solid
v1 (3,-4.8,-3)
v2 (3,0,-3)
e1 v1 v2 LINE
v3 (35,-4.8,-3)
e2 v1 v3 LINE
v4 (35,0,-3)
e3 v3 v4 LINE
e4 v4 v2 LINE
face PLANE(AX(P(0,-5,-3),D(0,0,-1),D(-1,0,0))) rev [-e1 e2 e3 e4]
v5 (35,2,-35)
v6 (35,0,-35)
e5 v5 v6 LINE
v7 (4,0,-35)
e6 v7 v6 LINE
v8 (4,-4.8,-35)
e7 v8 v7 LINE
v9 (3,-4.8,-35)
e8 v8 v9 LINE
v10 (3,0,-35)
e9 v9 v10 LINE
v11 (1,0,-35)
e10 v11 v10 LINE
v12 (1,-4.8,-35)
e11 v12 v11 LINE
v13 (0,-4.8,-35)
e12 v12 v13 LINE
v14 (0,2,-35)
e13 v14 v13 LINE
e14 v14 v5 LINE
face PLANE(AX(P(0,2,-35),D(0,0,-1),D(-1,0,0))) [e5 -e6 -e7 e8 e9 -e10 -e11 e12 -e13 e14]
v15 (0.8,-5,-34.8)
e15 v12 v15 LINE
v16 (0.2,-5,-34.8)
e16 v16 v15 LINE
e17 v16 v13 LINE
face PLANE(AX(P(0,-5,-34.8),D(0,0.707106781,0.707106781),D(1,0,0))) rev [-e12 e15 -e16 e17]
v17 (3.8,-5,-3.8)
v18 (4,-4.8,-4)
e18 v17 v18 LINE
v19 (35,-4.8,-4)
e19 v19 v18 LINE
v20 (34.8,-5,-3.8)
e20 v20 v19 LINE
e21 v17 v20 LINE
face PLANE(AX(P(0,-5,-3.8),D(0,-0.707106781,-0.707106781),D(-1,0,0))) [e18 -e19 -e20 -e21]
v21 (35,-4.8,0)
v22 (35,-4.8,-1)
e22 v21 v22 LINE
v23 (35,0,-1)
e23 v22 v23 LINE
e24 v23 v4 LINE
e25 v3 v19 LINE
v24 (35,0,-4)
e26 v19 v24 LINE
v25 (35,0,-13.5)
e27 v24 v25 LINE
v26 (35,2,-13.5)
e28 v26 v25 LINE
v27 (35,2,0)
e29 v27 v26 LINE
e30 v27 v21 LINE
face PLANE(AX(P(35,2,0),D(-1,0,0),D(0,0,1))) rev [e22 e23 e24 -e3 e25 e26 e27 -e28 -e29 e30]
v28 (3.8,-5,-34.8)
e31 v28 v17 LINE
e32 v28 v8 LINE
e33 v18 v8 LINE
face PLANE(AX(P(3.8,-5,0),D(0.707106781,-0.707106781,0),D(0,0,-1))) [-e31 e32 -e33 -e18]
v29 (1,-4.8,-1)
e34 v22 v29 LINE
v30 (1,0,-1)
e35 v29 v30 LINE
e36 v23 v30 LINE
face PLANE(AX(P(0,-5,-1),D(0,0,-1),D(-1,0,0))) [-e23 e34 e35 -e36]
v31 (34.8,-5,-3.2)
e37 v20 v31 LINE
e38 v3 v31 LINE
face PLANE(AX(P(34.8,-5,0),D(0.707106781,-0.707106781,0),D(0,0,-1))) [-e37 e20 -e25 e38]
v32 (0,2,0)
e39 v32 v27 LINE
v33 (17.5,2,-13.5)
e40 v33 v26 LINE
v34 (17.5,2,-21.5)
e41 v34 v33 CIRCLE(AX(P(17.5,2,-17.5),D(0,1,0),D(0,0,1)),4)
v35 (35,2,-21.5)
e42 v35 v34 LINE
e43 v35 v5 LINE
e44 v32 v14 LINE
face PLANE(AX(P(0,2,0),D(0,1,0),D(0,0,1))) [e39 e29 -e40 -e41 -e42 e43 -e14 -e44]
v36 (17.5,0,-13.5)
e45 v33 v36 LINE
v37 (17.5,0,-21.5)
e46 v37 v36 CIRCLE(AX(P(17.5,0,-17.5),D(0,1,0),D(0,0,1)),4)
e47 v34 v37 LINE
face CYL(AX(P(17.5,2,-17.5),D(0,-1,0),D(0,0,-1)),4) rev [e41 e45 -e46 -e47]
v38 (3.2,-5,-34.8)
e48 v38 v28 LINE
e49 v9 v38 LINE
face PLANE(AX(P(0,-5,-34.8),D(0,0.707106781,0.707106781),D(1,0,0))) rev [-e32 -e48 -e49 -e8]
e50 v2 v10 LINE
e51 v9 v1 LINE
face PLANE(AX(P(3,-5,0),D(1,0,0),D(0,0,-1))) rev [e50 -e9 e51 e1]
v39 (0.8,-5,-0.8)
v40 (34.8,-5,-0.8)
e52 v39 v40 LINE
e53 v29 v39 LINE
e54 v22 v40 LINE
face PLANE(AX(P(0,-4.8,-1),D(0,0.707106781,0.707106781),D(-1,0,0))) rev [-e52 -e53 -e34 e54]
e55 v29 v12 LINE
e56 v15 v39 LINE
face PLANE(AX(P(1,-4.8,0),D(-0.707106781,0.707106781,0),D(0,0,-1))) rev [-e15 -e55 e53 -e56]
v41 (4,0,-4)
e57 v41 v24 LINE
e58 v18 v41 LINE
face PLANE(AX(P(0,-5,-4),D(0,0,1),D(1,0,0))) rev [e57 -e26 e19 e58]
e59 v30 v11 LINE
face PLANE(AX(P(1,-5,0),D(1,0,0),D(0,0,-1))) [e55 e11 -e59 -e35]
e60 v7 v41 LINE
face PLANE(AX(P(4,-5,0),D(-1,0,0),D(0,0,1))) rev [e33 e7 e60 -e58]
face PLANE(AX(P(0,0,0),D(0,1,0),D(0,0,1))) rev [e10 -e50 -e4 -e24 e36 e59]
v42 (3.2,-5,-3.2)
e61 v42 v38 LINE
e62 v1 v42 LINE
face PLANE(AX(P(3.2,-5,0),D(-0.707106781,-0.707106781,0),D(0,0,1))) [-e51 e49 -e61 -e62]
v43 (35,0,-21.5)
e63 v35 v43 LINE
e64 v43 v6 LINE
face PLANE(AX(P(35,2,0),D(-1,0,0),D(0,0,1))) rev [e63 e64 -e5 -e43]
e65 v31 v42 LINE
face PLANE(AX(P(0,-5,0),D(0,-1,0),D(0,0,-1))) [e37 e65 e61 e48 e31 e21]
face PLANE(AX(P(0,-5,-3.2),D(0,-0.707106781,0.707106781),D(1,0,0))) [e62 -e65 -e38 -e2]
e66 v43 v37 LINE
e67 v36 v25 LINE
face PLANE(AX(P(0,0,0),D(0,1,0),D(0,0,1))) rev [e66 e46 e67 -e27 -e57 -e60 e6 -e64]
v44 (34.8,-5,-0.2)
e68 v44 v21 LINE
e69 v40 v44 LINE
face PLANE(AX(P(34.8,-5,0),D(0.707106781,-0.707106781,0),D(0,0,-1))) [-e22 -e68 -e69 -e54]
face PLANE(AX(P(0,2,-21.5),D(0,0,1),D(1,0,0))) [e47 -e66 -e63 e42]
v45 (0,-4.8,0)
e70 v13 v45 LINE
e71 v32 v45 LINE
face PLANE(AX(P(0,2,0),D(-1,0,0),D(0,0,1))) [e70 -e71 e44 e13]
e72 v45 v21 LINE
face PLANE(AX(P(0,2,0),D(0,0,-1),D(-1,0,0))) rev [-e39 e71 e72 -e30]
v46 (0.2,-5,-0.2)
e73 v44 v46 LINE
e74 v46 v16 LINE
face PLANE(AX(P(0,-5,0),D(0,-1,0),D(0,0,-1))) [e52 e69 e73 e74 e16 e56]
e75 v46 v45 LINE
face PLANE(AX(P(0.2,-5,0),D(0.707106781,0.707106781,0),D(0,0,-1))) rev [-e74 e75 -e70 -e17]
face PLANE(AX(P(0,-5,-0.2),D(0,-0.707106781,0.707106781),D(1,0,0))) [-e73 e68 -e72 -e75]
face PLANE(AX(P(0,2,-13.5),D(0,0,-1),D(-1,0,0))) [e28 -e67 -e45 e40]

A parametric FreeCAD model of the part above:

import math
import FreeCAD as App
import Part
import Sketcher

V = App.Vector
Q = App.Units.Quantity


def edges_at(feature, points):
    """Names of the edges that pass closest to the given points."""
    edges = feature.Shape.Edges
    near = lambda p: min(range(len(edges)), key=lambda i: edges[i].distToShape(Part.Vertex(*p))[0])
    return sorted({f"Edge{near(p) + 1}" for p in points})

doc = App.newDocument("Part")
body = doc.addObject("PartDesign::Body", "Body")

sketch1 = body.newObject("Sketcher::SketchObject", "Sketch")
sketch1.AttachmentSupport = (doc.getObject("XZ_Plane"), [""])
sketch1.MapMode = "FlatFace"
sketch1.addGeometry([
    Part.LineSegment(V(35, -13.5, 0), V(17.5, -13.5, 0)),
    Part.ArcOfCircle(Part.Circle(V(17.5, -17.5, 0), V(0, 0, 1), 4), math.radians(90), math.radians(270)),
    Part.LineSegment(V(17.5, -21.5, 0), V(35, -21.5, 0)),
    Part.LineSegment(V(35, -21.5, 0), V(35, -35, 0)),
    Part.LineSegment(V(35, -35, 0), V(0, -35, 0)),
    Part.LineSegment(V(0, -35, 0), V(0, 0, 0)),
    Part.LineSegment(V(0, 0, 0), V(35, 0, 0)),
    Part.LineSegment(V(35, 0, 0), V(35, -13.5, 0)),
], False)
sketch1.addConstraint([
    Sketcher.Constraint("Tangent", 0, 2, 1, 1),
    Sketcher.Constraint("Tangent", 1, 2, 2, 1),
    Sketcher.Constraint("Coincident", 2, 2, 3, 1),
    Sketcher.Constraint("Coincident", 3, 2, 4, 1),
    Sketcher.Constraint("Coincident", 4, 2, 5, 1),
    Sketcher.Constraint("Coincident", 5, 2, 6, 1),
    Sketcher.Constraint("Coincident", 6, 2, 7, 1),
    Sketcher.Constraint("Coincident", 7, 2, 0, 1),
    Sketcher.Constraint("Horizontal", 0),
    Sketcher.Constraint("Horizontal", 2),
    Sketcher.Constraint("Vertical", 3),
    Sketcher.Constraint("Horizontal", 4),
    Sketcher.Constraint("Vertical", 5),
    Sketcher.Constraint("Horizontal", 6),
    Sketcher.Constraint("Vertical", 7),
    Sketcher.Constraint("Coincident", 5, 2, -1, 1),
    Sketcher.Constraint("Vertical", 3, 2, 6, 2),
    Sketcher.Constraint("Equal", 6, 5),
    Sketcher.Constraint("Equal", 3, 7),
    Sketcher.Constraint("Radius", 1, Q("4 mm")),
    Sketcher.Constraint("DistanceX", 4, 2, 4, 1, Q("35 mm")),
    Sketcher.Constraint("DistanceX", 0, 2, 0, 1, Q("17.5 mm")),
])
pad1 = body.newObject("PartDesign::Pad", "Pad")
pad1.Profile = sketch1
pad1.Length = 2
pad1.Reversed = True

sketch2 = body.newObject("Sketcher::SketchObject", "Sketch001")
sketch2.AttachmentSupport = (doc.getObject("XZ_Plane"), [""])
sketch2.MapMode = "FlatFace"
sketch2.addGeometry([
    Part.LineSegment(V(35, -4, 0), V(35, -3, 0)),
    Part.LineSegment(V(35, -3, 0), V(3, -3, 0)),
    Part.LineSegment(V(3, -3, 0), V(3, -35, 0)),
    Part.LineSegment(V(3, -35, 0), V(4, -35, 0)),
    Part.LineSegment(V(4, -35, 0), V(4, -4, 0)),
    Part.LineSegment(V(4, -4, 0), V(35, -4, 0)),
    Part.LineSegment(V(35, -1, 0), V(35, 0, 0)),
    Part.LineSegment(V(35, 0, 0), V(0, 0, 0)),
    Part.LineSegment(V(0, 0, 0), V(0, -35, 0)),
    Part.LineSegment(V(0, -35, 0), V(1, -35, 0)),
    Part.LineSegment(V(1, -35, 0), V(1, -1, 0)),
    Part.LineSegment(V(1, -1, 0), V(35, -1, 0)),
], False)
sketch2.addConstraint([
    Sketcher.Constraint("Coincident", 0, 2, 1, 1),
    Sketcher.Constraint("Coincident", 1, 2, 2, 1),
    Sketcher.Constraint("Coincident", 2, 2, 3, 1),
    Sketcher.Constraint("Coincident", 3, 2, 4, 1),
    Sketcher.Constraint("Coincident", 4, 2, 5, 1),
    Sketcher.Constraint("Coincident", 5, 2, 0, 1),
    Sketcher.Constraint("Coincident", 6, 2, 7, 1),
    Sketcher.Constraint("Coincident", 7, 2, 8, 1),
    Sketcher.Constraint("Coincident", 8, 2, 9, 1),
    Sketcher.Constraint("Coincident", 9, 2, 10, 1),
    Sketcher.Constraint("Coincident", 10, 2, 11, 1),
    Sketcher.Constraint("Coincident", 11, 2, 6, 1),
    Sketcher.Constraint("Vertical", 0),
    Sketcher.Constraint("Horizontal", 1),
    Sketcher.Constraint("Vertical", 2),
    Sketcher.Constraint("Horizontal", 3),
    Sketcher.Constraint("Vertical", 4),
    Sketcher.Constraint("Horizontal", 5),
    Sketcher.Constraint("Vertical", 6),
    Sketcher.Constraint("Horizontal", 7),
    Sketcher.Constraint("Vertical", 8),
    Sketcher.Constraint("Horizontal", 9),
    Sketcher.Constraint("Vertical", 10),
    Sketcher.Constraint("Horizontal", 11),
    Sketcher.Constraint("Coincident", 7, 2, -1, 1),
    Sketcher.Constraint("Horizontal", 3, 2, 8, 2),
    Sketcher.Constraint("Vertical", 5, 2, 6, 2),
    Sketcher.Constraint("Equal", 3, 9),
    Sketcher.Constraint("Equal", 9, 0),
    Sketcher.Constraint("Equal", 1, 2),
    Sketcher.Constraint("Equal", 0, 6),
    Sketcher.Constraint("Equal", 7, 8),
    Sketcher.Constraint("DistanceX", 1, 2, 1, 1, Q("32 mm")),
    Sketcher.Constraint("DistanceX", 3, 1, 3, 2, Q("1 mm")),
    Sketcher.Constraint("DistanceX", 7, 2, 7, 1, Q("35 mm")),
])
pad2 = body.newObject("PartDesign::Pad", "Pad001")
pad2.Profile = sketch2
pad2.Length = 5
doc.recompute()

chamfer = body.newObject("PartDesign::Chamfer", "Chamfer")
chamfer.Base = (pad2, edges_at(pad2, [
    (19, -5, -3),
    (3, -5, -19),
    (3.5, -5, -35),
    (4, -5, -19.5),
    (19.5, -5, -4),
    (35, -5, -3.5),
    (1, -5, -18),
    (18, -5, -1),
    (35, -5, -0.5),
    (17.5, -5, 0),
    (0, -5, -17.5),
    (0.5, -5, -35),
]))
chamfer.Size = 0.2

doc.recompute()
